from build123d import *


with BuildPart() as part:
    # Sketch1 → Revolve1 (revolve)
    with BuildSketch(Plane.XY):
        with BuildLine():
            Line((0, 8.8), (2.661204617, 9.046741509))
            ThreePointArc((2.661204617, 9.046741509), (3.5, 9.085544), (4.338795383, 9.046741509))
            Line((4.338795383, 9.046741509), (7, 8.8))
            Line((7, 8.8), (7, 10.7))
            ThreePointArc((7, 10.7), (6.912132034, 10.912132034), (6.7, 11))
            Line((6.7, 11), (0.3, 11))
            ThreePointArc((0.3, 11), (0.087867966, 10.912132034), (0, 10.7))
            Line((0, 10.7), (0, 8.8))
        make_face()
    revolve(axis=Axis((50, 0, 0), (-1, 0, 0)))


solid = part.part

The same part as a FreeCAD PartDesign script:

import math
import FreeCAD as App
import Part
import Sketcher

doc = App.newDocument("Part")
body = doc.addObject("PartDesign::Body", "Body")

# Sketch on XY plane
sketch1 = body.newObject("Sketcher::SketchObject", "Sketch")
sketch1.AttachmentSupport = (doc.getObject("XY_Plane"), [""])
sketch1.MapMode = "FlatFace"
sketch1.addGeometry([
    Part.LineSegment(App.Vector(0, 8.8, 0), App.Vector(2.661205, 9.046742, 0)),  # 0
    Part.ArcOfCircle(Part.Circle(App.Vector(3.5, 0.000002, 0), App.Vector(0, 0, 1), 9.085542), math.radians(84.702796), math.radians(95.297204)),  # 1
    Part.LineSegment(App.Vector(4.338795, 9.046742, 0), App.Vector(7, 8.8, 0)),  # 2
    Part.LineSegment(App.Vector(7, 8.8, 0), App.Vector(7, 10.7, 0)),  # 3
    Part.ArcOfCircle(Part.Circle(App.Vector(6.7, 10.7, 0), App.Vector(0, 0, 1), 0.3), math.radians(0), math.radians(90)),  # 4
    Part.LineSegment(App.Vector(6.7, 11, 0), App.Vector(0.3, 11, 0)),  # 5
    Part.ArcOfCircle(Part.Circle(App.Vector(0.3, 10.7, 0), App.Vector(0, 0, 1), 0.3), math.radians(90), math.radians(180)),  # 6
    Part.LineSegment(App.Vector(0, 10.7, 0), App.Vector(0, 8.8, 0)),  # 7
], False)
sketch1.addConstraint([
    Sketcher.Constraint("Tangent", 0, 2, 1, 2),
    Sketcher.Constraint("Tangent", 1, 1, 2, 1),
    Sketcher.Constraint("Coincident", 2, 2, 3, 1),
    Sketcher.Constraint("Tangent", 3, 2, 4, 1),
    Sketcher.Constraint("Tangent", 4, 2, 5, 1),
    Sketcher.Constraint("Tangent", 5, 2, 6, 1),
    Sketcher.Constraint("Tangent", 6, 2, 7, 1),
    Sketcher.Constraint("Coincident", 7, 2, 0, 1),
    Sketcher.Constraint("Vertical", 3),
    Sketcher.Constraint("Horizontal", 5),
    Sketcher.Constraint("Vertical", 7),
    Sketcher.Constraint("Equal", 4, 6),
    Sketcher.Constraint("PointOnObject", 1, 3, -1),
    Sketcher.Constraint("PointOnObject", 6, 2, -2),
    Sketcher.Constraint("Horizontal", 0, 2, 1, 1),
    Sketcher.Constraint("Horizontal", 2, 2, 7, 2),
    Sketcher.Constraint("Radius", 4, 0.3),
    Sketcher.Constraint("DistanceX", 5, 2, 5, 1, 6.4),
    Sketcher.Constraint("DistanceY", 3, 1, 3, 2, 1.9),
    Sketcher.Constraint("DistanceY", -1, 1, 4, 2, 11.0),
    Sketcher.Constraint("Radius", 1, 9.085542),
])
revolution = body.newObject("PartDesign::Revolution", "Revolution")
revolution.Profile = sketch1
revolution.ReferenceAxis = (sketch1, ["H_Axis"])
revolution.Angle = 360

doc.recompute()
